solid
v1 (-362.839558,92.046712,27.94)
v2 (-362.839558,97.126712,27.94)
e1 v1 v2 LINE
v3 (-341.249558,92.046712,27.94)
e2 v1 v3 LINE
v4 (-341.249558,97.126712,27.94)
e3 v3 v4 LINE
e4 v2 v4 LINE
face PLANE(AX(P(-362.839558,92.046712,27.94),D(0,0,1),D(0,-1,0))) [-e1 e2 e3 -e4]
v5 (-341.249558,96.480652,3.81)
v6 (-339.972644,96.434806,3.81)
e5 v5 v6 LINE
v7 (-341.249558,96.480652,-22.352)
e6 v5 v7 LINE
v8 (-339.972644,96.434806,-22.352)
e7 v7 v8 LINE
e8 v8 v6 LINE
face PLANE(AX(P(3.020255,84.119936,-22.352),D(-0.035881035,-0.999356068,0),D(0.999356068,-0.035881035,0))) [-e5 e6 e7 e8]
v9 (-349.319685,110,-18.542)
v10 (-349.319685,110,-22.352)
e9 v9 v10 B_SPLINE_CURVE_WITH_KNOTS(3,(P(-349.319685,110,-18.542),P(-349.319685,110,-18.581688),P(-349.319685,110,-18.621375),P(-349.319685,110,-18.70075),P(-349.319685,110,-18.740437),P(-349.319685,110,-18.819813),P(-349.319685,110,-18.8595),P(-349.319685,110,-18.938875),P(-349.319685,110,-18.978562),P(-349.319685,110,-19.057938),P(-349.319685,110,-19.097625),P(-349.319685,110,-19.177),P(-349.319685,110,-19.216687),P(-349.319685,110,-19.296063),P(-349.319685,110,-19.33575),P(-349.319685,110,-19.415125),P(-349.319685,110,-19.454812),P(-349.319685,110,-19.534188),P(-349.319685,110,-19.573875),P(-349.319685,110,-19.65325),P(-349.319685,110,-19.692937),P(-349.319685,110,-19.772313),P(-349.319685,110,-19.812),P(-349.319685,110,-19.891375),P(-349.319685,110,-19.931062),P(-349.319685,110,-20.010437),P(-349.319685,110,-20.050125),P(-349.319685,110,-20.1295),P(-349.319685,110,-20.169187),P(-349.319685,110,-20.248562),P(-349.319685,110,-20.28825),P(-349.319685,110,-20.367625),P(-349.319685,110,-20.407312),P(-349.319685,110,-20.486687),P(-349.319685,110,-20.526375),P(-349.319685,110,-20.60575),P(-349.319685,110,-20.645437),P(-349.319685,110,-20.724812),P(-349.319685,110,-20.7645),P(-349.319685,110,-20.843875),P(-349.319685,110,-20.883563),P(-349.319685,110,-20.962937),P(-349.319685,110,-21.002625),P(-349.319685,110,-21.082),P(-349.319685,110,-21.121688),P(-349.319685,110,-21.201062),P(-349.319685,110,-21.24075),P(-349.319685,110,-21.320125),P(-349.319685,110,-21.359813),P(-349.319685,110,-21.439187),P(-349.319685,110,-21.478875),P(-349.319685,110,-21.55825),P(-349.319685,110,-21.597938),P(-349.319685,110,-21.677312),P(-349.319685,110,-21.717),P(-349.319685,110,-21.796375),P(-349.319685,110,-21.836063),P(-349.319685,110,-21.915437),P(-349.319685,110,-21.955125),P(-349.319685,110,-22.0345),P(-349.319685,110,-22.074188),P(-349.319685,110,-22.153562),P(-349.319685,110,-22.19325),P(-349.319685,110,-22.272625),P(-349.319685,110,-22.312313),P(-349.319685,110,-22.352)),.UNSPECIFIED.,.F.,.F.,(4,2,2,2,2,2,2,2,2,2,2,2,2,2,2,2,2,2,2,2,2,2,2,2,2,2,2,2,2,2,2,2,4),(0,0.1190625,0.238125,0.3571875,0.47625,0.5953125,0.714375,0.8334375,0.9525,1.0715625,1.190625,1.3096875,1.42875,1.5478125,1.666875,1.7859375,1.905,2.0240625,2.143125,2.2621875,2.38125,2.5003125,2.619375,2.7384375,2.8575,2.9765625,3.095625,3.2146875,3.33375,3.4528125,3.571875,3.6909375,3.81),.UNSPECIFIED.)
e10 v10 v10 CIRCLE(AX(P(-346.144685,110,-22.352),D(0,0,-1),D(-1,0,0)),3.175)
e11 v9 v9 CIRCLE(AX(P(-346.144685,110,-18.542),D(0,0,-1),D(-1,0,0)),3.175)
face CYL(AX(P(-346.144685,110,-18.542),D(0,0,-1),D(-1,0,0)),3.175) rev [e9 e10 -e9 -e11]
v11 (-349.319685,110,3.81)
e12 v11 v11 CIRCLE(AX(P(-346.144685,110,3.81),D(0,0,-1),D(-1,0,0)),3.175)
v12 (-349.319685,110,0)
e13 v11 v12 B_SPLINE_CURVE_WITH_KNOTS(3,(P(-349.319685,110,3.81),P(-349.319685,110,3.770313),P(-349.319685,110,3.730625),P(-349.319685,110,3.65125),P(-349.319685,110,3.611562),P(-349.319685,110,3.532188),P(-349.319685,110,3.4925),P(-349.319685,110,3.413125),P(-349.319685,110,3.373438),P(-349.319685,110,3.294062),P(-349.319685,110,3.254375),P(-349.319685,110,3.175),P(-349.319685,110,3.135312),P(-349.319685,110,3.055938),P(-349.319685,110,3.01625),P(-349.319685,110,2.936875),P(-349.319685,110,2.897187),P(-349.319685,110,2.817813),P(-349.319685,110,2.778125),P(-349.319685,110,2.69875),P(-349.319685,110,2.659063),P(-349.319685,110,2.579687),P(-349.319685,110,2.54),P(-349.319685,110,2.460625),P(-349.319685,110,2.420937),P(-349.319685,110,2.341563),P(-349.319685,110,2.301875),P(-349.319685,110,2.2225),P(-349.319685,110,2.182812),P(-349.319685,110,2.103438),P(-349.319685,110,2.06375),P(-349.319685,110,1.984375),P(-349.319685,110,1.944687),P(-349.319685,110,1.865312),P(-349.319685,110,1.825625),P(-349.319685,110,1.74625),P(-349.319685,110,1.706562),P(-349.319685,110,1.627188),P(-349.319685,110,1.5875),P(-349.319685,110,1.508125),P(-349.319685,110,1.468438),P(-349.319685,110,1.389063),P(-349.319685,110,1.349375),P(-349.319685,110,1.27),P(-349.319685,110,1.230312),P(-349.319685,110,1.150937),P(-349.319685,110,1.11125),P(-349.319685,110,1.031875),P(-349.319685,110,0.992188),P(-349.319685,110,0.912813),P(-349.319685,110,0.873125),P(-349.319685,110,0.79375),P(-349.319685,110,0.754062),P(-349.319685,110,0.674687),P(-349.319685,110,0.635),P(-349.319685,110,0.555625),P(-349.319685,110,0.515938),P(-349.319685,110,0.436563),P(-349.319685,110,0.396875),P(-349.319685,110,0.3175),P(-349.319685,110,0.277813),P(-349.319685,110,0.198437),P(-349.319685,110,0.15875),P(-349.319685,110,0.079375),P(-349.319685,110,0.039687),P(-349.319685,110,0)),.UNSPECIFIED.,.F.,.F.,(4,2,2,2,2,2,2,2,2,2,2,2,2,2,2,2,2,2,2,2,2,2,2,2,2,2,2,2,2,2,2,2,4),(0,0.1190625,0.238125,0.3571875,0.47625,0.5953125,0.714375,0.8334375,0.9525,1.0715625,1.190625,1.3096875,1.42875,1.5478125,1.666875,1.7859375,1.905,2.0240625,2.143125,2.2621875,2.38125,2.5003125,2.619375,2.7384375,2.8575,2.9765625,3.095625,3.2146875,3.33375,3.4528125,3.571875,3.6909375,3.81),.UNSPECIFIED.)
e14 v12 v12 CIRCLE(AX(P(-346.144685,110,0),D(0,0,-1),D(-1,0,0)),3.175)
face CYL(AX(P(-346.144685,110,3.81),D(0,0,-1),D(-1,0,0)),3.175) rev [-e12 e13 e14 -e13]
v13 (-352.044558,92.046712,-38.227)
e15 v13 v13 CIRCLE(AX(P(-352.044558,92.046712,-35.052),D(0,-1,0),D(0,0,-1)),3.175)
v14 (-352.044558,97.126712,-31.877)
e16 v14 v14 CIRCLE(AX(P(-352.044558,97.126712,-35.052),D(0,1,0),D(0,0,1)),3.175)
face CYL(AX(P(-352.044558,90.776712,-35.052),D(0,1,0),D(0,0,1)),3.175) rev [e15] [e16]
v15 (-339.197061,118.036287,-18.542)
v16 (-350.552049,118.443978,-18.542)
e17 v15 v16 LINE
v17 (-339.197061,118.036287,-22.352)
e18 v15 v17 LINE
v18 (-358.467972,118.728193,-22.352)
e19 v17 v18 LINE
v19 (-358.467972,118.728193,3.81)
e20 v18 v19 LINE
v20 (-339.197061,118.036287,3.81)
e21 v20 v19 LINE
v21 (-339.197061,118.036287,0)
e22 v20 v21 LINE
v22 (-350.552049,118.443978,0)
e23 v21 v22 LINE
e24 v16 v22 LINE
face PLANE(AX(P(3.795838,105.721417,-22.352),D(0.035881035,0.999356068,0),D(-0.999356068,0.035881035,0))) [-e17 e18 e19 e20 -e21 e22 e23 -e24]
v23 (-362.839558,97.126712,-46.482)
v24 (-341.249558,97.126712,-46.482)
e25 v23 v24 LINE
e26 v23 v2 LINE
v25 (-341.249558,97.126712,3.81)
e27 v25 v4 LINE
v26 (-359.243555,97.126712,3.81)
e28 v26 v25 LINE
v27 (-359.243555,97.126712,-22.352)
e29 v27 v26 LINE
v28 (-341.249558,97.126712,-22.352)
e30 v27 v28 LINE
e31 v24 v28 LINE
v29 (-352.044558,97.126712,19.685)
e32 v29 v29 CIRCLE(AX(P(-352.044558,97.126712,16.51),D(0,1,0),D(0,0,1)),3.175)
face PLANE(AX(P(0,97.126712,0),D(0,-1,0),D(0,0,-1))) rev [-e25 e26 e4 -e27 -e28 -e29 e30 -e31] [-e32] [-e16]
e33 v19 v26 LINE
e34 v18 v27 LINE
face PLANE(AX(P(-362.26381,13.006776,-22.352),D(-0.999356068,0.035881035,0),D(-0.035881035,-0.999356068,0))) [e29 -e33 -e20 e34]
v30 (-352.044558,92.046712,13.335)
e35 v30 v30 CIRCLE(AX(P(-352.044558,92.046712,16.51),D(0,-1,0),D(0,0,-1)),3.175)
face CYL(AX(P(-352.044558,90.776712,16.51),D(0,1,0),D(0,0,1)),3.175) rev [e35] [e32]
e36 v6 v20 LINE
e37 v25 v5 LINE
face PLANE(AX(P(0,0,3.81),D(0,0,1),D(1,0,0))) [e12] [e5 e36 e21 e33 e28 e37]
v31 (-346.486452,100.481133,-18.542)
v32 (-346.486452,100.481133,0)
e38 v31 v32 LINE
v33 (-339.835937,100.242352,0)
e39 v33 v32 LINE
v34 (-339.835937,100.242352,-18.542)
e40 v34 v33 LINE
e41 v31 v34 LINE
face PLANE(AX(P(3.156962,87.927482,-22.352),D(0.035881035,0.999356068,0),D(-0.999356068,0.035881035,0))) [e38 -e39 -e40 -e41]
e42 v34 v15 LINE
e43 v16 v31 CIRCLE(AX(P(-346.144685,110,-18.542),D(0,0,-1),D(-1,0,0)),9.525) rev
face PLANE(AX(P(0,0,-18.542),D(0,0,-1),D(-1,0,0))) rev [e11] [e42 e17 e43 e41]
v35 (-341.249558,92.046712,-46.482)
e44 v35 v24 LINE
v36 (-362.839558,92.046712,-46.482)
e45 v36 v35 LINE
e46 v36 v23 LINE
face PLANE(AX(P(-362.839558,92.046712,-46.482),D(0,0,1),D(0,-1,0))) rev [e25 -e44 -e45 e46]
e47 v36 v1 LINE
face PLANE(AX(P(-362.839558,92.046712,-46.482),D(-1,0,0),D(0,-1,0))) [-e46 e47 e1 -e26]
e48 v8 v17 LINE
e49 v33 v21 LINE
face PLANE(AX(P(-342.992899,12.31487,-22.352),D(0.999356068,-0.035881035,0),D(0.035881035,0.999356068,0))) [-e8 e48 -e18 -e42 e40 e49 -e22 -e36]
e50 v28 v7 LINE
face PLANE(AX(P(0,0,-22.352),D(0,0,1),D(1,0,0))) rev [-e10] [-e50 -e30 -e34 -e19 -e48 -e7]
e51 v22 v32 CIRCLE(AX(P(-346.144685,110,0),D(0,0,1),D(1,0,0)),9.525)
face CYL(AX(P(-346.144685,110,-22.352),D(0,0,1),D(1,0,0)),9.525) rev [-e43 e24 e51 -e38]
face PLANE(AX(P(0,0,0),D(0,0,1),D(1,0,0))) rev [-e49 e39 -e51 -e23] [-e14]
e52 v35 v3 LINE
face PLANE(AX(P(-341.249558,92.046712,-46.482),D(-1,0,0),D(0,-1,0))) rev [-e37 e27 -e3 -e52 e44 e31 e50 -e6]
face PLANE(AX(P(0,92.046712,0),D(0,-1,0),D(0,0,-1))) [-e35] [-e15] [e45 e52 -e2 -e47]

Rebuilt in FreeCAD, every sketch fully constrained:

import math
import FreeCAD as App
import Part
import Sketcher
from FreeCAD import Vector
Q = App.Units.Quantity

doc = App.newDocument("Part")
body = doc.addObject("PartDesign::Body", "Body")

# Sketch on XY plane
sketch1 = body.newObject("Sketcher::SketchObject", "Sketch")
sketch1.AttachmentSupport = (doc.getObject("XY_Plane"), [""])
sketch1.MapMode = "FlatFace"
sketch1.addGeometry([
    Part.ArcOfCircle(Part.Circle(Vector(-346.1, 110, 0), Vector(0, 0, 1), 9.5), math.radians(117.56), math.radians(129.18)),  # 0
    Part.LineSegment(Vector(-350.6, 118.4, 0), Vector(-358.5, 118.7, 0)),  # 1
    Part.LineSegment(Vector(-358.5, 118.7, 0), Vector(-359.2, 97.1, 0)),  # 2
    Part.LineSegment(Vector(-359.2, 97.1, 0), Vector(-340, 96.4, 0)),  # 3
    Part.LineSegment(Vector(-340, 96.4, 0), Vector(-339.8, 100.2, 0)),  # 4
    Part.LineSegment(Vector(-339.8, 100.2, 0), Vector(-346.5, 100.5, 0)),  # 5
    Part.ArcOfCircle(Part.Circle(Vector(-346.1, 110, 0), Vector(0, 0, 1), 9.5), math.radians(-133), math.radians(-92)),  # 6
    Part.ArcOfCircle(Part.Circle(Vector(-346.1, 110, 0), Vector(0, 0, 1), 9.5), math.radians(129), math.radians(227)),  # 7
], False)
sketch1.addConstraint([
    Sketcher.Constraint("Coincident", 0, 1, 1, 1),
    Sketcher.Constraint("Coincident", 1, 2, 2, 1),
    Sketcher.Constraint("Coincident", 2, 2, 3, 1),
    Sketcher.Constraint("Coincident", 3, 2, 4, 1),
    Sketcher.Constraint("Coincident", 4, 2, 5, 1),
    Sketcher.Constraint("Tangent", 5, 2, 6, 2),
    Sketcher.Constraint("Tangent", 6, 1, 7, 2),
    Sketcher.Constraint("Tangent", 7, 1, 0, 2),
    Sketcher.Constraint("Coincident", 6, 3, 0, 3),
    Sketcher.Constraint("Perpendicular", 1, 2),
    Sketcher.Constraint("Perpendicular", 2, 3),
    Sketcher.Constraint("Perpendicular", 3, 4),
    Sketcher.Constraint("Perpendicular", 4, 5),
    Sketcher.Constraint("Radius", 0, Q("0.375 in")),
    Sketcher.Constraint("Distance", 4, Q("0.15 in")),
    Sketcher.Constraint("Distance", 2, Q("0.851 in")),
    Sketcher.Constraint("Distance", 5, Q("0.262 in")),
    Sketcher.Constraint("DistanceY", -1, 1, 0, 3, 110.0),
    Sketcher.Constraint("Distance", 3, 19.283329),
    Sketcher.Constraint("DistanceX", 0, 1, -1, 1, 350.552049),
    Sketcher.Constraint("DistanceY", -1, 1, 0, 1, 118.443978),
    Sketcher.Constraint("DistanceX", 6, 1, -1, 1, 352.676179),
    Sketcher.Constraint("DistanceX", 7, 1, -1, 1, 352.162162),
])
pad1 = body.newObject("PartDesign::Pad", "Pad")
pad1.Profile = sketch1
pad1.Length = Q("0.88 in")
pad1.Reversed = True

# Sketch on XY plane
sketch2 = body.newObject("Sketcher::SketchObject", "Sketch001")
sketch2.AttachmentSupport = (doc.getObject("XY_Plane"), [""])
sketch2.MapMode = "FlatFace"
sketch2.AttachmentOffset = App.Placement(Vector(0, 0, -0.73 * 25.4), App.Rotation())
sketch2.addGeometry([
    Part.ArcOfCircle(Part.Circle(Vector(-346.1, 110, 0), Vector(0, 0, 1), 9.5), math.radians(118), math.radians(268)),  # 0
    Part.LineSegment(Vector(-350.6, 118.4, 0), Vector(-339.2, 118, 0)),  # 1
    Part.LineSegment(Vector(-339.2, 118, 0), Vector(-339.8, 100.2, 0)),  # 2
    Part.LineSegment(Vector(-339.8, 100.2, 0), Vector(-346.5, 100.5, 0)),  # 3
    Part.Circle(Vector(-346.1, 110, 0), Vector(0, 0, 1), 3.2),  # 4
], False)
sketch2.addConstraint([
    Sketcher.Constraint("Coincident", 0, 1, 1, 1),
    Sketcher.Constraint("Coincident", 1, 2, 2, 1),
    Sketcher.Constraint("Coincident", 2, 2, 3, 1),
    Sketcher.Constraint("Tangent", 3, 2, 0, 2),
    Sketcher.Constraint("Coincident", 4, 3, 0, 3),
    Sketcher.Constraint("Perpendicular", 1, 2),
    Sketcher.Constraint("Perpendicular", 2, 3),
    Sketcher.Constraint("Diameter", 4, Q("0.25 in")),
    Sketcher.Constraint("Radius", 0, Q("0.375 in")),
    Sketcher.Constraint("Distance", 2, Q("0.701 in")),
    Sketcher.Constraint("Distance", 3, Q("0.262 in")),
    Sketcher.Constraint("DistanceY", -1, 1, 0, 3, 110.0),
    Sketcher.Constraint("DistanceX", 0, 1, -1, 1, 350.552049),
    Sketcher.Constraint("DistanceY", -1, 1, 0, 1, 118.443978),
])
pad2 = body.newObject("PartDesign::Pad", "Pad001")
pad2.Profile = sketch2
pad2.Length = Q("0.15 in")
pad2.Reversed = True

# Sketch on XY plane
sketch3 = body.newObject("Sketcher::SketchObject", "Sketch002")
sketch3.AttachmentSupport = (doc.getObject("XY_Plane"), [""])
sketch3.MapMode = "FlatFace"
sketch3.addGeometry([
    Part.LineSegment(Vector(-358.467972, 118.728193, 0), Vector(-359.243555, 97.126712, 0)),
    Part.LineSegment(Vector(-359.243555, 97.126712, 0), Vector(-339.972644, 96.434806, 0)),
    Part.LineSegment(Vector(-339.972644, 96.434806, 0), Vector(-339.197061, 118.036287, 0)),
    Part.LineSegment(Vector(-339.197061, 118.036287, 0), Vector(-358.467972, 118.728193, 0)),
], False)
sketch3.addConstraint([
    Sketcher.Constraint("Coincident", 0, 2, 1, 1),
    Sketcher.Constraint("Coincident", 1, 2, 2, 1),
    Sketcher.Constraint("Coincident", 2, 2, 3, 1),
    Sketcher.Constraint("Coincident", 3, 2, 0, 1),
    Sketcher.Constraint("Perpendicular", 0, 1),
    Sketcher.Constraint("Perpendicular", 1, 2),
    Sketcher.Constraint("Perpendicular", 2, 3),
    Sketcher.Constraint("Distance", 0, Q("0.851 in")),
    Sketcher.Constraint("Distance", 1, 19.283329),
    Sketcher.Constraint("DistanceY", -1, 1, 0, 2, 97.126712),
    Sketcher.Constraint("DistanceX", 2, 2, -1, 1, 339.197061),
    Sketcher.Constraint("DistanceX", 0, 2, 1, 2, 19.270911),
])
pad3 = body.newObject("PartDesign::Pad", "Pad002")
pad3.Profile = sketch3
pad3.Length = Q("0.15 in")

# Sketch on XY plane
sketch4 = body.newObject("Sketcher::SketchObject", "Sketch003")
sketch4.AttachmentSupport = (doc.getObject("XY_Plane"), [""])
sketch4.MapMode = "FlatFace"
sketch4.AttachmentOffset = App.Placement(Vector(0, 0, 0.15 * 25.4), App.Rotation())
sketch4.addGeometry(Part.Circle(Vector(-346.1, 110, 0), Vector(0, 0, 1), 3.2), False)
sketch4.addConstraint([
    Sketcher.Constraint("Diameter", 0, Q("0.25 in")),
    Sketcher.Constraint("DistanceY", -1, 1, 0, 3, 110.0),
    Sketcher.Constraint("DistanceX", 0, 3, -1, 1, 346.144685),
])
pocket1 = body.newObject("PartDesign::Pocket", "Pocket")
pocket1.Profile = sketch4
pocket1.Length = Q("0.15 in")

# Sketch on XZ plane
sketch5 = body.newObject("Sketcher::SketchObject", "Sketch004")
sketch5.AttachmentSupport = (doc.getObject("XZ_Plane"), [""])
sketch5.MapMode = "FlatFace"
sketch5.AttachmentOffset = App.Placement(Vector(0, 0, -97.126712), App.Rotation())
sketch5.addGeometry([
    Part.LineSegment(Vector(-363, -46, 0), Vector(-363, 28, 0)),
    Part.LineSegment(Vector(-363, 28, 0), Vector(-341, 28, 0)),
    Part.LineSegment(Vector(-341, 28, 0), Vector(-341, -46, 0)),
    Part.LineSegment(Vector(-341, -46, 0), Vector(-363, -46, 0)),
], False)
sketch5.addConstraint([
    Sketcher.Constraint("Coincident", 0, 2, 1, 1),
    Sketcher.Constraint("Coincident", 1, 2, 2, 1),
    Sketcher.Constraint("Coincident", 2, 2, 3, 1),
    Sketcher.Constraint("Coincident", 3, 2, 0, 1),
    Sketcher.Constraint("Vertical", 0),
    Sketcher.Constraint("Horizontal", 1),
    Sketcher.Constraint("Vertical", 2),
    Sketcher.Constraint("Horizontal", 3),
    Sketcher.Constraint("DistanceX", 1, 1, 1, 2, Q("0.85 in")),
    Sketcher.Constraint("DistanceY", 0, 1, 0, 2, Q("2.93 in")),
    Sketcher.Constraint("DistanceY", -1, 1, 0, 2, Q("1.1 in")),
    Sketcher.Constraint("DistanceX", 0, 2, -1, 1, 362.839558),
])
pad4 = body.newObject("PartDesign::Pad", "Pad003")
pad4.Profile = sketch5
pad4.Length = Q("0.2 in")

# Sketch on XZ plane
sketch6 = body.newObject("Sketcher::SketchObject", "Sketch005")
sketch6.AttachmentSupport = (doc.getObject("XZ_Plane"), [""])
sketch6.MapMode = "FlatFace"
sketch6.AttachmentOffset = App.Placement(Vector(0, 0, -97.126712), App.Rotation())
sketch6.addGeometry([
    Part.Circle(Vector(-352, 16.5, 0), Vector(0, 0, 1), 3.2),
    Part.Circle(Vector(-352, -35.1, 0), Vector(0, 0, 1), 3.2),
], False)
sketch6.addConstraint([
    Sketcher.Constraint("Equal", 0, 1),
    Sketcher.Constraint("Vertical", 0, 3, 1, 3),
    Sketcher.Constraint("Diameter", 0, Q("0.25 in")),
    Sketcher.Constraint("DistanceY", -1, 1, 0, 3, Q("0.65 in")),
    Sketcher.Constraint("DistanceY", 1, 3, -1, 1, Q("1.38 in")),
    Sketcher.Constraint("DistanceX", 0, 3, -1, 1, 352.044558),
])
pocket2 = body.newObject("PartDesign::Pocket", "Pocket001")
pocket2.Profile = sketch6
pocket2.Length = Q("0.25 in")
pocket2.Reversed = True

doc.recompute()
